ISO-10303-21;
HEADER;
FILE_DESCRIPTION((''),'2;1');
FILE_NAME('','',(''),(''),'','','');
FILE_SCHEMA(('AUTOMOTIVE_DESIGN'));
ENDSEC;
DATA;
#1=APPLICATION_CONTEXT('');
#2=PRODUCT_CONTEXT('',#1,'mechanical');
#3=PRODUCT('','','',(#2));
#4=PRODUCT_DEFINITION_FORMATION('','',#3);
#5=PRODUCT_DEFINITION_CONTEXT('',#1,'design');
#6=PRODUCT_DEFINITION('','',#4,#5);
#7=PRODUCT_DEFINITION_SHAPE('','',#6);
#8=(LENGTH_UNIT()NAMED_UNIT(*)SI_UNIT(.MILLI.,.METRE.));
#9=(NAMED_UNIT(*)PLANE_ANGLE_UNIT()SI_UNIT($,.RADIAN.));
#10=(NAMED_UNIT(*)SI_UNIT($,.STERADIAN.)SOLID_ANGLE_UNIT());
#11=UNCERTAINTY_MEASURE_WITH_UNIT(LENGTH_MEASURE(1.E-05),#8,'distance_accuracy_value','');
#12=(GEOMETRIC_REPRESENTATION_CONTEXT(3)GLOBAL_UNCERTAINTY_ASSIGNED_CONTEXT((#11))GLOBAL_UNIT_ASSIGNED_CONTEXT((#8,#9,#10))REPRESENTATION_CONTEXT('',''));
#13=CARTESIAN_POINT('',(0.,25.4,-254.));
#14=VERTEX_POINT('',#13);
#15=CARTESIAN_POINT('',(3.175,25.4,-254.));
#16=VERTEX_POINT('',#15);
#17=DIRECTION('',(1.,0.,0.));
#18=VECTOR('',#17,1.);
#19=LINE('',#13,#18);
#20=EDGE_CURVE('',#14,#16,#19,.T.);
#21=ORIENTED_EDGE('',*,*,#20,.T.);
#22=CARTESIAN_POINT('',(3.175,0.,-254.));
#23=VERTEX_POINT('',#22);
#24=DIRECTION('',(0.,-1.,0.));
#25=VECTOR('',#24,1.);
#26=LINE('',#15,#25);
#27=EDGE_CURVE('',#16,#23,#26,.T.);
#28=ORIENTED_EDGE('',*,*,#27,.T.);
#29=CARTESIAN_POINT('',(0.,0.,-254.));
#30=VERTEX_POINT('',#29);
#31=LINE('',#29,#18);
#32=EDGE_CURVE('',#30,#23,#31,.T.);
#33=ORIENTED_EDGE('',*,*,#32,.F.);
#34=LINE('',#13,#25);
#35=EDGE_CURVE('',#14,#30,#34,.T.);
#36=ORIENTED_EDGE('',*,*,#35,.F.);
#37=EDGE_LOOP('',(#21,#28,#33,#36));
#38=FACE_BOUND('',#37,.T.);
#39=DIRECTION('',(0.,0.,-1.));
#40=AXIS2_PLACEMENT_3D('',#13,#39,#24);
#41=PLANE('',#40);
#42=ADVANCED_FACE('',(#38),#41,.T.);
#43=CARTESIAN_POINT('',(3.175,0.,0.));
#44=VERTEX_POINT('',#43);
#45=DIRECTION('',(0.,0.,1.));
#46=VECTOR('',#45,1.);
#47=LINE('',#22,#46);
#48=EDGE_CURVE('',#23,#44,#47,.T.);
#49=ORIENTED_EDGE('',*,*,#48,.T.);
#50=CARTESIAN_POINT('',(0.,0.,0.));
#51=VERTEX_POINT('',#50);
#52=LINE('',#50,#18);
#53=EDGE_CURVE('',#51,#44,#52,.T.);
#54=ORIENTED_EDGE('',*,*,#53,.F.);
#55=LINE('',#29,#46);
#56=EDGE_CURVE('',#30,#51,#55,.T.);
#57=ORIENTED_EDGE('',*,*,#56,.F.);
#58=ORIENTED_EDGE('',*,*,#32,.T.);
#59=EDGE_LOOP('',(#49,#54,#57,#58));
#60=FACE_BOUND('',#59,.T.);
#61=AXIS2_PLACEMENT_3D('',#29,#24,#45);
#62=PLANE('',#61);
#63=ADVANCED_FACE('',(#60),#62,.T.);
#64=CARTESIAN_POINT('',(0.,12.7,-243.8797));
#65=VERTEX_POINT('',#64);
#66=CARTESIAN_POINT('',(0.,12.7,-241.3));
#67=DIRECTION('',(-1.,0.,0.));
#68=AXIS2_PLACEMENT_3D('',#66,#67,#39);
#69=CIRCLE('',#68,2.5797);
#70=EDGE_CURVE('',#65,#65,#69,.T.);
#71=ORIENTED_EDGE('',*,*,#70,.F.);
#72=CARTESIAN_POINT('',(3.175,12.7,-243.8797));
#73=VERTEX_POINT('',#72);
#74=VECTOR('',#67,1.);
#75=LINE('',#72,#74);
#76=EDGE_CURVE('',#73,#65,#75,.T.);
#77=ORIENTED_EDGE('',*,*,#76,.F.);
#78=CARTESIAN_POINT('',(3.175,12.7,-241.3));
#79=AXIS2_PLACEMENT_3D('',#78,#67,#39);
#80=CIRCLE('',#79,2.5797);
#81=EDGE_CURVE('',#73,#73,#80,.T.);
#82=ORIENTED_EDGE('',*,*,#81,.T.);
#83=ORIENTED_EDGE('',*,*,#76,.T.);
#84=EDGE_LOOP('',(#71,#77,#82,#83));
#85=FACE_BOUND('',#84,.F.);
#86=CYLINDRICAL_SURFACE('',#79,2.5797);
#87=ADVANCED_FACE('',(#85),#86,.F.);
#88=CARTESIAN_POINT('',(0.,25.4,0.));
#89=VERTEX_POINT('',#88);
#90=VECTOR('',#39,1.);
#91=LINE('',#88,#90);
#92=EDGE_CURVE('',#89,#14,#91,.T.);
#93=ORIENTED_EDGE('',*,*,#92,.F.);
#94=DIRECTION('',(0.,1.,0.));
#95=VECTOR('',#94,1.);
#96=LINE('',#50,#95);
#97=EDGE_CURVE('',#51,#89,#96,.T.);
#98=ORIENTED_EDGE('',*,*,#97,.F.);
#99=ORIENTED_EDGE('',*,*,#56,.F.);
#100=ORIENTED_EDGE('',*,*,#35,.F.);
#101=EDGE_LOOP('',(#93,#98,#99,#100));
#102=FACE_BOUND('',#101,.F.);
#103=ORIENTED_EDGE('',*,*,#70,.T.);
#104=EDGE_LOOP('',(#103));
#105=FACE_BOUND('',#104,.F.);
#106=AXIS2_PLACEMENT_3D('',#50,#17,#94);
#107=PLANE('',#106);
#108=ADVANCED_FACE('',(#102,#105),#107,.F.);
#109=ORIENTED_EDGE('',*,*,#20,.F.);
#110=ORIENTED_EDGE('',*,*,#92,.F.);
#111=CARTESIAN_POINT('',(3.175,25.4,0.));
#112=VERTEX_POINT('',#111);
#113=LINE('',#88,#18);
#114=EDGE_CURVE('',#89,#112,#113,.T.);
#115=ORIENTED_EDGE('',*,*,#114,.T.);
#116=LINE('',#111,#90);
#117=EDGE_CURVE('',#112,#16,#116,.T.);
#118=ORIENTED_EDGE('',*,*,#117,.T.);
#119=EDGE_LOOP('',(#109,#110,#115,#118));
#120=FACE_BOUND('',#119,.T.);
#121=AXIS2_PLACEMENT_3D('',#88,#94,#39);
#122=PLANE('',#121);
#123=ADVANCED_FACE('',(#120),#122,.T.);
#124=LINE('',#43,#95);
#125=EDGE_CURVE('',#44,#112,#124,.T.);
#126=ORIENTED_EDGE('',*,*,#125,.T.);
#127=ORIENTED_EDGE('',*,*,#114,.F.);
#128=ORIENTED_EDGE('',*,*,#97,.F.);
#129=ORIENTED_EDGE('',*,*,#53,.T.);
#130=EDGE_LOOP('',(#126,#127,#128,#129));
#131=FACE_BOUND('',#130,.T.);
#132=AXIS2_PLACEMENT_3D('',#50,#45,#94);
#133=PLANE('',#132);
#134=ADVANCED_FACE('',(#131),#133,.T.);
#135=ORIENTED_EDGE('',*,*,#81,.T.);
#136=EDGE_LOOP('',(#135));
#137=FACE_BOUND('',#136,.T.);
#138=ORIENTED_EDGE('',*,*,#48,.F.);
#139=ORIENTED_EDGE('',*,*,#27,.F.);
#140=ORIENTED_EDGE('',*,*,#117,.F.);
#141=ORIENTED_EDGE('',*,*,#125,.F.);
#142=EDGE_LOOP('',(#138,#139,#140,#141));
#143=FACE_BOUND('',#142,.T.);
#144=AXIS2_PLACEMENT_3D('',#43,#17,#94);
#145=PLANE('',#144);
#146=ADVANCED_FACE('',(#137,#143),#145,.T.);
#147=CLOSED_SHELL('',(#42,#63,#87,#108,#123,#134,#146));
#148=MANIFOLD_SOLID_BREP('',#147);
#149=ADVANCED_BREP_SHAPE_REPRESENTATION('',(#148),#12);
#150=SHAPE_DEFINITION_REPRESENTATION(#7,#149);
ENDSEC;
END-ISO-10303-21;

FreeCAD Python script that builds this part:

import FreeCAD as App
import Part
import Sketcher
Q = App.Units.Quantity

doc = App.newDocument("Part")
body = doc.addObject("PartDesign::Body", "Body")

# Sketch on YZ plane
sketch1 = doc.addObject("Sketcher::SketchObject", "Sketch")
body.addObject(sketch1)
sketch1.AttachmentSupport = (doc.YZ_Plane, [""])
sketch1.MapMode = "FlatFace"
sketch1.addGeometry([
    Part.LineSegment(App.Vector(25.4, 0, 0), App.Vector(0, 0, 0)),
    Part.LineSegment(App.Vector(0, 0, 0), App.Vector(0, -254, 0)),
    Part.LineSegment(App.Vector(0, -254, 0), App.Vector(25.4, -254, 0)),
    Part.LineSegment(App.Vector(25.4, -254, 0), App.Vector(25.4, 0, 0)),
], False)
sketch1.addConstraint([
    Sketcher.Constraint("Coincident", 0, 2, 1, 1),
    Sketcher.Constraint("Coincident", 1, 2, 2, 1),
    Sketcher.Constraint("Coincident", 2, 2, 3, 1),
    Sketcher.Constraint("Coincident", 3, 2, 0, 1),
    Sketcher.Constraint("Horizontal", 0),
    Sketcher.Constraint("Vertical", 1),
    Sketcher.Constraint("Horizontal", 2),
    Sketcher.Constraint("Vertical", 3),
    Sketcher.Constraint("Coincident", 0, 2, -1, 1),
    Sketcher.Constraint("DistanceX", 0, 2, 0, 1, Q("1 in")),
    Sketcher.Constraint("DistanceY", 1, 2, 1, 1, Q("10 in")),
])
pad1 = doc.addObject("PartDesign::Pad", "Pad")
body.addObject(pad1)
pad1.Profile = sketch1
pad1.Length = Q("0.125 in")

# Sketch on YZ plane
sketch2 = doc.addObject("Sketcher::SketchObject", "Sketch001")
body.addObject(sketch2)
sketch2.AttachmentSupport = (doc.YZ_Plane, [""])
sketch2.MapMode = "FlatFace"
sketch2.AttachmentOffset = App.Placement(App.Vector(0, 0, 0.125 * 25.4), App.Rotation())
sketch2.addGeometry(Part.Circle(App.Vector(12.7, -241.3, 0), App.Vector(0, 0, 1), 2.5797), False)
sketch2.addConstraint([
    Sketcher.Constraint("Diameter", 0, Q("0.203126 in")),
    Sketcher.Constraint("DistanceX", -1, 1, 0, 3, Q("0.5 in")),
    Sketcher.Constraint("DistanceY", 0, 3, -1, 1, Q("9.5 in")),
])
doc.recompute()
hole = doc.addObject("PartDesign::Hole", "Hole")
body.addObject(hole)
hole.Profile = sketch2
hole.ThreadType = "None"
hole.Diameter = Q("0.203126 in")
hole.DepthType = "ThroughAll"

doc.recompute()
